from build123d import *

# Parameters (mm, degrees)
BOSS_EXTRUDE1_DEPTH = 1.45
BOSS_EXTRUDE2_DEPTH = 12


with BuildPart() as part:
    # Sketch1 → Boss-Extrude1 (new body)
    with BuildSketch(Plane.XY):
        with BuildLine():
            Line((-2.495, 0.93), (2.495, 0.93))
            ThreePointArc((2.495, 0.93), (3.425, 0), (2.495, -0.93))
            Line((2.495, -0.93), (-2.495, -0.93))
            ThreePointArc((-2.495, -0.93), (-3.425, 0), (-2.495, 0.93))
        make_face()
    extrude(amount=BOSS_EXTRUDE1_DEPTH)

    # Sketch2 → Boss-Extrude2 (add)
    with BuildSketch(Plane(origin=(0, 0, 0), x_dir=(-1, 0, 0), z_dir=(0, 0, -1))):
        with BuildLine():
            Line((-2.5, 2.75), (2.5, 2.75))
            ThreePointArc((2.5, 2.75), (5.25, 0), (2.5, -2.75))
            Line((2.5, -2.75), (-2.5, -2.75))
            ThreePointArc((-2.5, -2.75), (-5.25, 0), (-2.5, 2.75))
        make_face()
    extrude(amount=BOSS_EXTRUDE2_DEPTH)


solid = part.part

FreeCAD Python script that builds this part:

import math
import FreeCAD as App
import Part
import Sketcher
from FreeCAD import Vector
Q = App.Units.Quantity

doc = App.newDocument("Part")
body = doc.addObject("PartDesign::Body", "Body")

sketch1 = body.newObject("Sketcher::SketchObject", "Sketch")
sketch1.AttachmentSupport = (doc.getObject("XY_Plane"), [""])
sketch1.MapMode = "FlatFace"
sketch1.addGeometry(Part.LineSegment(Vector(2.5, 0.9, 0), Vector(-2.5, 0.9, 0)), False)
sketch1.addGeometry(Part.ArcOfCircle(Part.Circle(Vector(-2.5, 0, 0), Vector(0, 0, 1), 0.9), math.radians(90), math.radians(270)), False)
sketch1.addGeometry(Part.LineSegment(Vector(-2.5, -0.9, 0), Vector(2.5, -0.9, 0)), False)
sketch1.addGeometry(Part.ArcOfCircle(Part.Circle(Vector(2.5, 0, 0), Vector(0, 0, 1), 0.9), math.radians(-90), math.radians(90)), False)
sketch1.addConstraint(Sketcher.Constraint("Tangent", 0, 2, 1, 1))
sketch1.addConstraint(Sketcher.Constraint("Tangent", 1, 2, 2, 1))
sketch1.addConstraint(Sketcher.Constraint("Tangent", 2, 2, 3, 1))
sketch1.addConstraint(Sketcher.Constraint("Tangent", 3, 2, 0, 1))
sketch1.addConstraint(Sketcher.Constraint("Horizontal", 0))
sketch1.addConstraint(Sketcher.Constraint("Horizontal", 2))
sketch1.addConstraint(Sketcher.Constraint("Symmetric", 1, 3, 3, 3, -1, 1))
sketch1.addConstraint(Sketcher.Constraint("Radius", 1, Q("0.93 mm")))
sketch1.addConstraint(Sketcher.Constraint("DistanceX", 0, 2, 0, 1, Q("4.99 mm")))
pad1 = body.newObject("PartDesign::Pad", "Pad")
pad1.Profile = sketch1
pad1.Length = 1.45

sketch2 = body.newObject("Sketcher::SketchObject", "Sketch001")
sketch2.AttachmentSupport = (doc.getObject("XY_Plane"), [""])
sketch2.MapMode = "FlatFace"
sketch2.addGeometry(Part.LineSegment(Vector(-2.5, 2.8, 0), Vector(2.5, 2.8, 0)), False)
sketch2.addGeometry(Part.ArcOfCircle(Part.Circle(Vector(2.5, 0, 0), Vector(0, 0, 1), 2.8), math.radians(-90), math.radians(90)), False)
sketch2.addGeometry(Part.LineSegment(Vector(2.5, -2.8, 0), Vector(-2.5, -2.8, 0)), False)
sketch2.addGeometry(Part.ArcOfCircle(Part.Circle(Vector(-2.5, 0, 0), Vector(0, 0, 1), 2.8), math.radians(90), math.radians(270)), False)
sketch2.addConstraint(Sketcher.Constraint("Tangent", 0, 2, 1, 2))
sketch2.addConstraint(Sketcher.Constraint("Tangent", 1, 1, 2, 1))
sketch2.addConstraint(Sketcher.Constraint("Tangent", 2, 2, 3, 2))
sketch2.addConstraint(Sketcher.Constraint("Tangent", 3, 1, 0, 1))
sketch2.addConstraint(Sketcher.Constraint("Horizontal", 0))
sketch2.addConstraint(Sketcher.Constraint("Horizontal", 2))
sketch2.addConstraint(Sketcher.Constraint("Symmetric", 1, 3, 3, 3, -1, 1))
sketch2.addConstraint(Sketcher.Constraint("DistanceX", 0, 1, 0, 2, Q("5 mm")))
sketch2.addConstraint(Sketcher.Constraint("Radius", 1, Q("2.75 mm")))
pad2 = body.newObject("PartDesign::Pad", "Pad001")
pad2.Profile = sketch2
pad2.Length = 12
pad2.Reversed = True

doc.recompute()
